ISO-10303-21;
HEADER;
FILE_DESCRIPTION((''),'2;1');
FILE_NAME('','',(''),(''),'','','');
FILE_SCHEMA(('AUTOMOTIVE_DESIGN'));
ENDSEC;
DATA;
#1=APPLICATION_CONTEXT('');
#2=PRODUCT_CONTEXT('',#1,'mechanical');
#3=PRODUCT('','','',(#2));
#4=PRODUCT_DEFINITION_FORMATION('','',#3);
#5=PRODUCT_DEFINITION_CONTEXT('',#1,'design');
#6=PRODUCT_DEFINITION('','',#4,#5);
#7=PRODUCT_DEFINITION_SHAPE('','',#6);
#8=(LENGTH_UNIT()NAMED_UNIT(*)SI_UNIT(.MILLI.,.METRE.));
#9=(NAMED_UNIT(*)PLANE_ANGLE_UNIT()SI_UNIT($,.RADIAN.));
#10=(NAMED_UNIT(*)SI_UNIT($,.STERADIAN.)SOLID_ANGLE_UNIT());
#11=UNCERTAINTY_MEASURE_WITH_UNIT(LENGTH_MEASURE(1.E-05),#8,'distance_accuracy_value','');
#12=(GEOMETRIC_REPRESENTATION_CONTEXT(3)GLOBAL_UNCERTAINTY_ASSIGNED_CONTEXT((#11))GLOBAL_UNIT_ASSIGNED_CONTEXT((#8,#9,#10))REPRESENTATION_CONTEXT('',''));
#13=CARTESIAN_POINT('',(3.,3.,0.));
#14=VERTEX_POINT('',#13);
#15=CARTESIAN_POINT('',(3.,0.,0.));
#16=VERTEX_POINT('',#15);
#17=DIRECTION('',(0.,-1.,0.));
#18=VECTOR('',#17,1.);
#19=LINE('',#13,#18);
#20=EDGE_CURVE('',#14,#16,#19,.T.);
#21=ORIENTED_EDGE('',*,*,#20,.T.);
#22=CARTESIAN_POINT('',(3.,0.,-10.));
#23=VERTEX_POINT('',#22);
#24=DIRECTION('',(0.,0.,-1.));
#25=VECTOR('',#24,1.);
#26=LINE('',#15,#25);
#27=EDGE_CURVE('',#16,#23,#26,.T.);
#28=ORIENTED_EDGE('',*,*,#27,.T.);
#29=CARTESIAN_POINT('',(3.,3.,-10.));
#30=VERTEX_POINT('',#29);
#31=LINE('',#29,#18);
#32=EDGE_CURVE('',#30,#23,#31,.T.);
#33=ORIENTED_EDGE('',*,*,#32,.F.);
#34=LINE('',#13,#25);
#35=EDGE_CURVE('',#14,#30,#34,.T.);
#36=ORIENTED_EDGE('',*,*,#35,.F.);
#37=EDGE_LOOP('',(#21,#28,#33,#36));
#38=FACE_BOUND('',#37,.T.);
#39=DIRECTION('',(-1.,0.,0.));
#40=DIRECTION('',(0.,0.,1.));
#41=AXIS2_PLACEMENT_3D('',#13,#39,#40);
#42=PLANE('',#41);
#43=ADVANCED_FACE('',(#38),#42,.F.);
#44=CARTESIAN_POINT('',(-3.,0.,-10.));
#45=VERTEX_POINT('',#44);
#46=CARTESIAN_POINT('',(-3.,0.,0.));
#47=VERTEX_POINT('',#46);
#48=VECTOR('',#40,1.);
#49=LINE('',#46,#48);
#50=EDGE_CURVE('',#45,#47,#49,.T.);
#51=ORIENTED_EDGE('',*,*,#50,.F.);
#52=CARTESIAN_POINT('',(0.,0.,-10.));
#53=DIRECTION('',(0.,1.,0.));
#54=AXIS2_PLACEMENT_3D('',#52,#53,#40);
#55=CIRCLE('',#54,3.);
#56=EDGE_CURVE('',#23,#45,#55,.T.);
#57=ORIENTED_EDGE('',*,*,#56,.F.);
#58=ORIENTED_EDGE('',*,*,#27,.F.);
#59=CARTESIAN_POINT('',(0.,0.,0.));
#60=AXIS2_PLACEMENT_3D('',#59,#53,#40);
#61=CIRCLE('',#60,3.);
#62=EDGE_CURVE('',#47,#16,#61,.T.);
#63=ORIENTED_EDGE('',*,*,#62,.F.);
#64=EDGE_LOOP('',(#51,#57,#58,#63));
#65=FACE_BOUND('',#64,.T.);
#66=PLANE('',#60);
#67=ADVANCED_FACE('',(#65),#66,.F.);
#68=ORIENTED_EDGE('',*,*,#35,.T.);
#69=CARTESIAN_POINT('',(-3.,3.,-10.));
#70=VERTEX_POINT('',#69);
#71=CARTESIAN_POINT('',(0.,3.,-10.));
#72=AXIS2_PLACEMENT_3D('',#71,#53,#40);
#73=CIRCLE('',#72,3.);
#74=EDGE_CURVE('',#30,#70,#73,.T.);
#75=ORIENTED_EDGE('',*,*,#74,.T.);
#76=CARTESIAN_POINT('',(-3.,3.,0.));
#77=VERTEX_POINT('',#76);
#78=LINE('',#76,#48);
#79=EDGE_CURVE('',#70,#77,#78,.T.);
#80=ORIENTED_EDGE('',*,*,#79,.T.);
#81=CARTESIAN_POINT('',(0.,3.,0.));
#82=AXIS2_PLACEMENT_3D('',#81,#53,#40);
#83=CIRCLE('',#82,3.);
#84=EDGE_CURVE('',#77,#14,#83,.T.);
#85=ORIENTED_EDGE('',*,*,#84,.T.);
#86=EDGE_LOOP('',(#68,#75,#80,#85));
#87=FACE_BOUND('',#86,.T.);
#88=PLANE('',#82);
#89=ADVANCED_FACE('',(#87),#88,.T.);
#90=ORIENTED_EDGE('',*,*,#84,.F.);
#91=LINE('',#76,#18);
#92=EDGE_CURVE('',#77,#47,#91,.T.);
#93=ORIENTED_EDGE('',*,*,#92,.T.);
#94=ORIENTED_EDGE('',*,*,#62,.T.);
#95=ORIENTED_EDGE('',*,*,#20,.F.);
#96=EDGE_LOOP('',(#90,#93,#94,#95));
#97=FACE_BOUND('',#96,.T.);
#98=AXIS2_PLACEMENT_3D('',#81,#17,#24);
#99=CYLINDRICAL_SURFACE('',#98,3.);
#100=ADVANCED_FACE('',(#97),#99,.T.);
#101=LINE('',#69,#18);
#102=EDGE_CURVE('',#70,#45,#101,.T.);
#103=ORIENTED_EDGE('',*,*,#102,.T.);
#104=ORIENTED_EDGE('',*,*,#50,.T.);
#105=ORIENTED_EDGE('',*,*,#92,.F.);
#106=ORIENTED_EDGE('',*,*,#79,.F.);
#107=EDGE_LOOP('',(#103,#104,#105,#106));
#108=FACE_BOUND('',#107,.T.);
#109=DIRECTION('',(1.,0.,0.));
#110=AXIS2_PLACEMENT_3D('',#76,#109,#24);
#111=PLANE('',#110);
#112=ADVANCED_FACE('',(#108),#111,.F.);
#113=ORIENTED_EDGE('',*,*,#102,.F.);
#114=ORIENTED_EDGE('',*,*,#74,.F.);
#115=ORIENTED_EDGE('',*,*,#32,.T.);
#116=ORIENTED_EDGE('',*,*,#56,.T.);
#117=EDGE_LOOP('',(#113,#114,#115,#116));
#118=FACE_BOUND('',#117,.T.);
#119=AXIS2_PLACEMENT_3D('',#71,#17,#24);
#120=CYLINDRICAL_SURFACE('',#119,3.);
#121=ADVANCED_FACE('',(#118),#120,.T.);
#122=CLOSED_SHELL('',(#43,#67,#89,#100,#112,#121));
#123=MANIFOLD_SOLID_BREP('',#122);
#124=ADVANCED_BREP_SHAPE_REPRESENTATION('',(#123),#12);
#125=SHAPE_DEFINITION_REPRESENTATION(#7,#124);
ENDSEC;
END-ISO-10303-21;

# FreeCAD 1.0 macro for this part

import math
import FreeCAD as App
import Part
import Sketcher

V = App.Vector

doc = App.newDocument("Part")
body = doc.addObject("PartDesign::Body", "Body")

# Sketch on XZ plane
sketch1 = doc.addObject("Sketcher::SketchObject", "Sketch")
body.addObject(sketch1)
sketch1.AttachmentSupport = (doc.XZ_Plane, [""])
sketch1.MapMode = "FlatFace"
sketch1.addGeometry([
    Part.LineSegment(V(-3, -10, 0), V(-3, 0, 0)),
    Part.ArcOfCircle(Part.Circle(V(0, 0, 0), V(0, 0, 1), 3), math.radians(0), math.radians(180)),
    Part.LineSegment(V(3, 0, 0), V(3, -10, 0)),
    Part.ArcOfCircle(Part.Circle(V(0, -10, 0), V(0, 0, 1), 3), math.radians(180), math.radians(360)),
], False)
sketch1.addConstraint([
    Sketcher.Constraint("Tangent", 0, 2, 1, 2),
    Sketcher.Constraint("Tangent", 1, 1, 2, 1),
    Sketcher.Constraint("Tangent", 2, 2, 3, 2),
    Sketcher.Constraint("Tangent", 3, 1, 0, 1),
    Sketcher.Constraint("Vertical", 0),
    Sketcher.Constraint("Vertical", 2),
    Sketcher.Constraint("Coincident", 1, 3, -1, 1),
    Sketcher.Constraint("Radius", 1, 3.0),
    Sketcher.Constraint("DistanceY", 0, 1, 0, 2, 10.0),
])
pad1 = doc.addObject("PartDesign::Pad", "Pad")
body.addObject(pad1)
pad1.Profile = sketch1
pad1.Length = 3
pad1.Reversed = True

doc.recompute()
